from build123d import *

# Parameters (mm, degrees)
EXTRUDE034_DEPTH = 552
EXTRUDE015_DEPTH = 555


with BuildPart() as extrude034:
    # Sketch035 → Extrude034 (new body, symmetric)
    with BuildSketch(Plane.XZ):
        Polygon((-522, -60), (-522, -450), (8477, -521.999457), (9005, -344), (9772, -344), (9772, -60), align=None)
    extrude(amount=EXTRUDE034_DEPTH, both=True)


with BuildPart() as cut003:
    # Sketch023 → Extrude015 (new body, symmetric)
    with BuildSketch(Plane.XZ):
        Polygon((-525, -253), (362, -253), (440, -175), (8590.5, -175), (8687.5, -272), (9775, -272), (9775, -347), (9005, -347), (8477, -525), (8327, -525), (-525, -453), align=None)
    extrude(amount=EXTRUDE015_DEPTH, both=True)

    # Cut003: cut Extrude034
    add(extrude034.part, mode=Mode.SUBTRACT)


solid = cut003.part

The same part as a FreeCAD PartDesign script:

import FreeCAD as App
import Part
import Sketcher

V = App.Vector
Q = App.Units.Quantity

doc = App.newDocument("Part")
params = doc.addObject("Spreadsheet::Sheet", "Params")
for row, (alias, value) in enumerate([
    ("sketch1_width", "767 mm"),
    ("sketch1_width2", "10294 mm"),
    ("sketch1_height", "390 mm"),
    ("sketch1_height2", "284 mm"),
    ("pad1_length", "1104 mm"),
    ("sketch2_width", "887 mm"),
    ("sketch2_width2", "150 mm"),
    ("sketch2_width3", "770 mm"),
    ("sketch2_height", "200 mm"),
    ("sketch2_height2", "75 mm"),
    ("pad2_length", "1110 mm"),
], start=1):
    params.set(f"A{row}", alias)
    params.set(f"B{row}", "=" + value)
    params.setAlias(f"B{row}", alias)

body = doc.addObject("PartDesign::Body", "Body")

# Sketch on XZ plane
sketch1 = body.newObject("Sketcher::SketchObject", "Sketch")
sketch1.AttachmentSupport = (doc.getObject("XZ_Plane"), [""])
sketch1.MapMode = "FlatFace"
sketch1.addGeometry([
    Part.LineSegment(V(-522, -60, 0), V(-522, -450, 0)),  # 0
    Part.LineSegment(V(-522, -450, 0), V(8477, -522, 0)),  # 1
    Part.LineSegment(V(8477, -522, 0), V(9005, -344, 0)),  # 2
    Part.LineSegment(V(9005, -344, 0), V(9772, -344, 0)),  # 3
    Part.LineSegment(V(9772, -344, 0), V(9772, -60, 0)),  # 4
    Part.LineSegment(V(9772, -60, 0), V(-522, -60, 0)),  # 5
], False)
sketch1.addConstraint([
    Sketcher.Constraint("Coincident", 0, 2, 1, 1),
    Sketcher.Constraint("Coincident", 1, 2, 2, 1),
    Sketcher.Constraint("Coincident", 2, 2, 3, 1),
    Sketcher.Constraint("Coincident", 3, 2, 4, 1),
    Sketcher.Constraint("Coincident", 4, 2, 5, 1),
    Sketcher.Constraint("Coincident", 5, 2, 0, 1),
    Sketcher.Constraint("Vertical", 0),
    Sketcher.Constraint("Horizontal", 3),
    Sketcher.Constraint("Vertical", 4),
    Sketcher.Constraint("Horizontal", 5),
    Sketcher.Constraint("DistanceX", 3, 1, 3, 2, Q("767 mm")),
    Sketcher.Constraint("DistanceX", 5, 2, 5, 1, Q("10294 mm")),
    Sketcher.Constraint("DistanceY", 0, 2, 0, 1, Q("390 mm")),
    Sketcher.Constraint("DistanceY", 4, 1, 4, 2, Q("284 mm")),
    Sketcher.Constraint("DistanceX", 0, 2, -1, 1, Q("522 mm")),
    Sketcher.Constraint("DistanceY", 0, 2, -1, 1, Q("450 mm")),
    Sketcher.Constraint("DistanceX", -1, 1, 1, 2, Q("8477 mm")),
    Sketcher.Constraint("Angle", 2, Q("18.63 deg")),
])
sketch1.setExpression("Constraints[10]", "Params.sketch1_width")
sketch1.setExpression("Constraints[11]", "Params.sketch1_width2")
sketch1.setExpression("Constraints[12]", "Params.sketch1_height")
sketch1.setExpression("Constraints[13]", "Params.sketch1_height2")
pad1 = body.newObject("PartDesign::Pad", "Pad")
pad1.Profile = sketch1
pad1.setExpression("Length", "Params.pad1_length")
pad1.Midplane = True
body2 = doc.addObject("PartDesign::Body", "Body001")

# Sketch on XZ plane
sketch2 = body2.newObject("Sketcher::SketchObject", "Sketch001")
sketch2.AttachmentSupport = (doc.getObject("XZ_Plane001"), [""])
sketch2.MapMode = "FlatFace"
sketch2.addGeometry([
    Part.LineSegment(V(362, -253, 0), V(-525, -253, 0)),  # 0
    Part.LineSegment(V(-525, -253, 0), V(-525, -453, 0)),  # 1
    Part.LineSegment(V(-525, -453, 0), V(8327, -525, 0)),  # 2
    Part.LineSegment(V(8327, -525, 0), V(8477, -525, 0)),  # 3
    Part.LineSegment(V(8477, -525, 0), V(9005, -347, 0)),  # 4
    Part.LineSegment(V(9005, -347, 0), V(9775, -347, 0)),  # 5
    Part.LineSegment(V(9775, -347, 0), V(9775, -272, 0)),  # 6
    Part.LineSegment(V(9775, -272, 0), V(8688, -272, 0)),  # 7
    Part.LineSegment(V(8688, -272, 0), V(8590, -175, 0)),  # 8
    Part.LineSegment(V(8590, -175, 0), V(440, -175, 0)),  # 9
    Part.LineSegment(V(440, -175, 0), V(362, -253, 0)),  # 10
], False)
sketch2.addConstraint([
    Sketcher.Constraint("Coincident", 0, 2, 1, 1),
    Sketcher.Constraint("Coincident", 1, 2, 2, 1),
    Sketcher.Constraint("Coincident", 2, 2, 3, 1),
    Sketcher.Constraint("Coincident", 3, 2, 4, 1),
    Sketcher.Constraint("Coincident", 4, 2, 5, 1),
    Sketcher.Constraint("Coincident", 5, 2, 6, 1),
    Sketcher.Constraint("Coincident", 6, 2, 7, 1),
    Sketcher.Constraint("Coincident", 7, 2, 8, 1),
    Sketcher.Constraint("Coincident", 8, 2, 9, 1),
    Sketcher.Constraint("Coincident", 9, 2, 10, 1),
    Sketcher.Constraint("Coincident", 10, 2, 0, 1),
    Sketcher.Constraint("Horizontal", 0),
    Sketcher.Constraint("Vertical", 1),
    Sketcher.Constraint("Horizontal", 3),
    Sketcher.Constraint("Horizontal", 5),
    Sketcher.Constraint("Vertical", 6),
    Sketcher.Constraint("Horizontal", 7),
    Sketcher.Constraint("Horizontal", 9),
    Sketcher.Constraint("Perpendicular", 8, 10),
    Sketcher.Constraint("DistanceX", 0, 2, 0, 1, Q("887 mm")),
    Sketcher.Constraint("DistanceX", 3, 1, 3, 2, Q("150 mm")),
    Sketcher.Constraint("DistanceX", 5, 1, 5, 2, Q("770 mm")),
    Sketcher.Constraint("DistanceY", 1, 2, 1, 1, Q("200 mm")),
    Sketcher.Constraint("DistanceY", 6, 1, 6, 2, Q("75 mm")),
    Sketcher.Constraint("Angle", 8, Q("135 deg")),
    Sketcher.Constraint("DistanceX", 7, 2, 7, 1, Q("1087.5 mm")),
    Sketcher.Constraint("DistanceX", 9, 2, 9, 1, Q("8150.5 mm")),
    Sketcher.Constraint("DistanceX", 0, 2, -1, 1, Q("525 mm")),
    Sketcher.Constraint("DistanceY", 0, 2, -1, 1, Q("253 mm")),
    Sketcher.Constraint("DistanceX", -1, 1, 2, 2, Q("8327 mm")),
    Sketcher.Constraint("DistanceY", 2, 2, -1, 1, Q("525 mm")),
    Sketcher.Constraint("DistanceX", -1, 1, 4, 2, Q("9005 mm")),
    Sketcher.Constraint("DistanceY", 4, 2, -1, 1, Q("347 mm")),
])
sketch2.setExpression("Constraints[19]", "Params.sketch2_width")
sketch2.setExpression("Constraints[20]", "Params.sketch2_width2")
sketch2.setExpression("Constraints[21]", "Params.sketch2_width3")
sketch2.setExpression("Constraints[22]", "Params.sketch2_height")
sketch2.setExpression("Constraints[23]", "Params.sketch2_height2")
pad2 = body2.newObject("PartDesign::Pad", "Pad001")
pad2.Profile = sketch2
pad2.setExpression("Length", "Params.pad2_length")
pad2.Midplane = True
doc.recompute()

boolean = body2.newObject("PartDesign::Boolean", "Boolean")
boolean.Type = "Cut"
boolean.addObjects([body])

doc.recompute()
